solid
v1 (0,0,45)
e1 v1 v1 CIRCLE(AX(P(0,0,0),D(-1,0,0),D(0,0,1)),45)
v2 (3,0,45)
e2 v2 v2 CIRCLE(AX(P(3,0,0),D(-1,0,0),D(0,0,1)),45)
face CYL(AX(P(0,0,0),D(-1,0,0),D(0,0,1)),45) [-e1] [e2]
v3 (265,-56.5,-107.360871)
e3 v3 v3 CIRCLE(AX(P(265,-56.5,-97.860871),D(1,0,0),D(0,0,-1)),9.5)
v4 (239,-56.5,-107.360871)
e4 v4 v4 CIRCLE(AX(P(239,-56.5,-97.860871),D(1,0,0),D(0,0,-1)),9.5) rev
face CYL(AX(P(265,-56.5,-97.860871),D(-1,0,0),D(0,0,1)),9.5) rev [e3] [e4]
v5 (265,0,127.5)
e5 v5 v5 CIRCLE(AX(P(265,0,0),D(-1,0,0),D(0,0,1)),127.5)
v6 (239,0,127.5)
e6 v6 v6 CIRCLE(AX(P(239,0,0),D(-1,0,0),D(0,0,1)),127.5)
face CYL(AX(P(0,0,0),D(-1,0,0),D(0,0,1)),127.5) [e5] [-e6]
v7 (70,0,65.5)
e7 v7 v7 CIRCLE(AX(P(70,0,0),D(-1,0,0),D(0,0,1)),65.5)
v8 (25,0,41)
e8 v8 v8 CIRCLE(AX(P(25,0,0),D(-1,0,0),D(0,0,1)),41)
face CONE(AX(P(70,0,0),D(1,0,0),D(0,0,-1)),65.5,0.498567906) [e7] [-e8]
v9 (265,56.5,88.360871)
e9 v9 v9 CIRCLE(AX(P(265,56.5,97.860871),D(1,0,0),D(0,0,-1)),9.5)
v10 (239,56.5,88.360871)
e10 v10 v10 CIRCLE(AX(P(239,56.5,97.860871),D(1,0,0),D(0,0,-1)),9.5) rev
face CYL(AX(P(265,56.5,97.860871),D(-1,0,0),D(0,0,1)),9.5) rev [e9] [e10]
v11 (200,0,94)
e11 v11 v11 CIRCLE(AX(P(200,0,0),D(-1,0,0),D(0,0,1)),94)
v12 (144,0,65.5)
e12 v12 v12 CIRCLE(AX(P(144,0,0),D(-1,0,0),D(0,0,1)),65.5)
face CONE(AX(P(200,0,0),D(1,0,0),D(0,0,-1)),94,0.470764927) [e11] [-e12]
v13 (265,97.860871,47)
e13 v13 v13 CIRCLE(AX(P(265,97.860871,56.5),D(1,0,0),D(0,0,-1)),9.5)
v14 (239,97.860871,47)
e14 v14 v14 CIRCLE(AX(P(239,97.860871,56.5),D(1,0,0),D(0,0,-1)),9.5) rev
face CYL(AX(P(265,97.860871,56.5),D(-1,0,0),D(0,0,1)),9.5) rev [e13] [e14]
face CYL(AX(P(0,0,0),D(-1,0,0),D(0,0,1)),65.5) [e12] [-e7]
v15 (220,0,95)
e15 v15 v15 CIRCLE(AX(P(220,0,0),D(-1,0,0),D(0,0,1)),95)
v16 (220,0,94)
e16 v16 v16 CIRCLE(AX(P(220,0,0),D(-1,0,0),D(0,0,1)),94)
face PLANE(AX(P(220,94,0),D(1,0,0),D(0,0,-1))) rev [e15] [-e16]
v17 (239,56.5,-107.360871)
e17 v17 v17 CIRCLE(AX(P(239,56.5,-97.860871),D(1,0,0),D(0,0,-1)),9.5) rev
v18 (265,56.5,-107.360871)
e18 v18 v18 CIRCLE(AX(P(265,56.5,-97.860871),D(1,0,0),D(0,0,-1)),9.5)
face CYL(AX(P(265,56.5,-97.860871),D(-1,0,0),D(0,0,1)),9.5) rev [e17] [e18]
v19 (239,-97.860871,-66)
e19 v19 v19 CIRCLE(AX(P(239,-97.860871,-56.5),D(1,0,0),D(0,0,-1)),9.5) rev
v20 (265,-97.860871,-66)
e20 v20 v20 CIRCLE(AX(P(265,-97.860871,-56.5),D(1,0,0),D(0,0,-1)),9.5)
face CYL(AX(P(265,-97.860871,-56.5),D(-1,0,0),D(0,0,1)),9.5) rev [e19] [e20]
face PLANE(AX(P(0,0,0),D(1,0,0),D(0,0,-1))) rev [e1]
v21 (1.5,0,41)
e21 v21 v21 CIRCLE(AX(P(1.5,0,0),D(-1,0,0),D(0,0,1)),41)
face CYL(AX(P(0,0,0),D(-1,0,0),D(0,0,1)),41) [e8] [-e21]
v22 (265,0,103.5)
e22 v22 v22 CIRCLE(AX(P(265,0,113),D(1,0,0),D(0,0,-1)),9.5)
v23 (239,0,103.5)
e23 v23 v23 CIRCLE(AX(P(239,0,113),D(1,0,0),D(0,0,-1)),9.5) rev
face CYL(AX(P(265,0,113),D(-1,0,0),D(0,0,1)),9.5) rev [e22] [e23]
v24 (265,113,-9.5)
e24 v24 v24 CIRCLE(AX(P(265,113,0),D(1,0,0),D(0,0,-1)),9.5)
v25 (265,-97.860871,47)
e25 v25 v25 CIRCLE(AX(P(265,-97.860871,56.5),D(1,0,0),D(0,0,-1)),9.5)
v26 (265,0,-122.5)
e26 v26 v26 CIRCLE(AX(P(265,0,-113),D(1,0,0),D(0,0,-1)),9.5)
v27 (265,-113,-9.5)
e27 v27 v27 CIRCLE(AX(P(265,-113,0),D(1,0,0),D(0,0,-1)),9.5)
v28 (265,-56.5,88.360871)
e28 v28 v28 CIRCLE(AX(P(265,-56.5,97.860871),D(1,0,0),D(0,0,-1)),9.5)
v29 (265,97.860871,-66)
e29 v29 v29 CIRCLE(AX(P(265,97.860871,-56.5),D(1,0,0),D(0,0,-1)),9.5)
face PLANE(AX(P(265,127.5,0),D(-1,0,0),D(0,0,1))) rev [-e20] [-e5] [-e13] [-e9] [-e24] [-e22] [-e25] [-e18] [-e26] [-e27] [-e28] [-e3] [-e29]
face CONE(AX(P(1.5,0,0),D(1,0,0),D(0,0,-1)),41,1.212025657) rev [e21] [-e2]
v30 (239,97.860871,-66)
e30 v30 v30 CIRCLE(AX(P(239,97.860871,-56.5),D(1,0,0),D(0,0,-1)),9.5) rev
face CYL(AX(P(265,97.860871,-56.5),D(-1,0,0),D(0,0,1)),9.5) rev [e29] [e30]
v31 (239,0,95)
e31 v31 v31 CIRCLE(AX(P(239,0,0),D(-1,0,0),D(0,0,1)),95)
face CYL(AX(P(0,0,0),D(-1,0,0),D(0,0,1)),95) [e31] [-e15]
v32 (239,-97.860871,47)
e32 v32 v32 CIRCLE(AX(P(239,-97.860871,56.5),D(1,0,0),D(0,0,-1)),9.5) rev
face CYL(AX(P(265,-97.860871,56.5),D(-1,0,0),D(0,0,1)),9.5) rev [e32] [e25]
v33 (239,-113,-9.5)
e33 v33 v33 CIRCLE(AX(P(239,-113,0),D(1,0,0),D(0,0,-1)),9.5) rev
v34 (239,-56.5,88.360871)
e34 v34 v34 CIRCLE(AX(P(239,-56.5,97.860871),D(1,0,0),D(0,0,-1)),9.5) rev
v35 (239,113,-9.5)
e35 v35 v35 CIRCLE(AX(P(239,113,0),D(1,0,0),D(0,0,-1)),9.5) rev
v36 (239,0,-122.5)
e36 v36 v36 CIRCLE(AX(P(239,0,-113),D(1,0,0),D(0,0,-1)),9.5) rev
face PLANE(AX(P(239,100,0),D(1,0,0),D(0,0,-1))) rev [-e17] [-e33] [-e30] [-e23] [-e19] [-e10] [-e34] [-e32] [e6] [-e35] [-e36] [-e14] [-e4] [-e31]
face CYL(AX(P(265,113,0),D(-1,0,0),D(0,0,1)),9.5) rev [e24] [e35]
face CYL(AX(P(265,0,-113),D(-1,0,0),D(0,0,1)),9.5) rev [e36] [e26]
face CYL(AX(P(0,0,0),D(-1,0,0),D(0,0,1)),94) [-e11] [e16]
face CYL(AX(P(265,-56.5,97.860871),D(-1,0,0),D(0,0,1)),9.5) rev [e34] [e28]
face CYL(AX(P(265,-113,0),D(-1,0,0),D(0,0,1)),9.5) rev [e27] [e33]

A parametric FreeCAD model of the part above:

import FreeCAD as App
import Part
import Sketcher

V = App.Vector

doc = App.newDocument("Part")
params = doc.addObject("Spreadsheet::Sheet", "Params")
for row, (alias, value) in enumerate([
    ("sketch1_width", "265 mm"),
    ("sketch1_width2", "26 mm"),
    ("sketch1_width3", "19 mm"),
    ("sketch1_width4", "20 mm"),
    ("sketch1_width5", "74 mm"),
    ("revolution_angle", "360 deg"),
    ("sketch2_diameter", "19 mm"),
    ("sketch3_diameter", "19 mm"),
    ("sketch4_diameter", "19 mm"),
    ("sketch5_diameter", "19 mm"),
    ("sketch6_diameter", "19 mm"),
    ("sketch7_diameter", "19 mm"),
    ("sketch8_diameter", "19 mm"),
    ("sketch9_diameter", "19 mm"),
    ("sketch10_diameter", "19 mm"),
    ("sketch11_diameter", "19 mm"),
    ("sketch12_diameter", "19 mm"),
    ("sketch13_diameter", "19 mm"),
], start=1):
    params.set(f"A{row}", alias)
    params.set(f"B{row}", "=" + value)
    params.setAlias(f"B{row}", alias)

body = doc.addObject("PartDesign::Body", "Body")

# Sketch on XY plane
sketch1 = doc.addObject("Sketcher::SketchObject", "Sketch")
body.addObject(sketch1)
sketch1.AttachmentSupport = (doc.XY_Plane, [""])
sketch1.MapMode = "FlatFace"
sketch1.addGeometry([
    Part.LineSegment(V(0, 0, 0), V(265, 0, 0)),  # 0
    Part.LineSegment(V(265, 0, 0), V(265, 127.5, 0)),  # 1
    Part.LineSegment(V(265, 127.5, 0), V(239, 127.5, 0)),  # 2
    Part.LineSegment(V(239, 127.5, 0), V(239, 95, 0)),  # 3
    Part.LineSegment(V(239, 95, 0), V(220, 95, 0)),  # 4
    Part.LineSegment(V(220, 95, 0), V(220, 94, 0)),  # 5
    Part.LineSegment(V(220, 94, 0), V(200, 94, 0)),  # 6
    Part.LineSegment(V(200, 94, 0), V(144, 65.5, 0)),  # 7
    Part.LineSegment(V(144, 65.5, 0), V(70, 65.5, 0)),  # 8
    Part.LineSegment(V(70, 65.5, 0), V(25, 41, 0)),  # 9
    Part.LineSegment(V(25, 41, 0), V(1.5, 41, 0)),  # 10
    Part.LineSegment(V(1.5, 41, 0), V(3, 45, 0)),  # 11
    Part.LineSegment(V(3, 45, 0), V(0, 45, 0)),  # 12
    Part.LineSegment(V(0, 45, 0), V(0, 0, 0)),  # 13
], False)
sketch1.addConstraint([
    Sketcher.Constraint("Coincident", 0, 2, 1, 1),
    Sketcher.Constraint("Coincident", 1, 2, 2, 1),
    Sketcher.Constraint("Coincident", 2, 2, 3, 1),
    Sketcher.Constraint("Coincident", 3, 2, 4, 1),
    Sketcher.Constraint("Coincident", 4, 2, 5, 1),
    Sketcher.Constraint("Coincident", 5, 2, 6, 1),
    Sketcher.Constraint("Coincident", 6, 2, 7, 1),
    Sketcher.Constraint("Coincident", 7, 2, 8, 1),
    Sketcher.Constraint("Coincident", 8, 2, 9, 1),
    Sketcher.Constraint("Coincident", 9, 2, 10, 1),
    Sketcher.Constraint("Coincident", 10, 2, 11, 1),
    Sketcher.Constraint("Coincident", 11, 2, 12, 1),
    Sketcher.Constraint("Coincident", 12, 2, 13, 1),
    Sketcher.Constraint("Coincident", 13, 2, 0, 1),
    Sketcher.Constraint("Horizontal", 0),
    Sketcher.Constraint("Vertical", 1),
    Sketcher.Constraint("Horizontal", 2),
    Sketcher.Constraint("Vertical", 3),
    Sketcher.Constraint("Horizontal", 4),
    Sketcher.Constraint("Vertical", 5),
    Sketcher.Constraint("Horizontal", 6),
    Sketcher.Constraint("Horizontal", 8),
    Sketcher.Constraint("Horizontal", 10),
    Sketcher.Constraint("Horizontal", 12),
    Sketcher.Constraint("Vertical", 13),
    Sketcher.Constraint("Coincident", 13, 2, -1, 1),
    Sketcher.Constraint("DistanceX", 0, 1, 0, 2, 265.0),
    Sketcher.Constraint("DistanceX", 2, 2, 2, 1, 26.0),
    Sketcher.Constraint("DistanceX", 4, 2, 4, 1, 19.0),
    Sketcher.Constraint("DistanceX", 6, 2, 6, 1, 20.0),
    Sketcher.Constraint("DistanceX", 8, 2, 8, 1, 74.0),
    Sketcher.Constraint("DistanceX", 12, 2, 12, 1, 3.0),
    Sketcher.Constraint("DistanceY", 5, 2, 5, 1, 1.0),
    Sketcher.Constraint("DistanceY", 13, 2, 13, 1, 45.0),
    Sketcher.Constraint("DistanceX", 10, 2, 10, 1, 23.5),
    Sketcher.Constraint("DistanceY", 1, 1, 1, 2, 127.5),
    Sketcher.Constraint("DistanceY", 3, 2, 3, 1, 32.5),
    Sketcher.Constraint("DistanceX", -1, 1, 7, 2, 144.0),
    Sketcher.Constraint("DistanceX", -1, 1, 9, 2, 25.0),
    Sketcher.Constraint("DistanceY", -1, 1, 9, 2, 41.0),
    Sketcher.Constraint("DistanceY", 7, 2, 2, 2, 62.0),
])
sketch1.setExpression("Constraints[26]", "Params.sketch1_width")
sketch1.setExpression("Constraints[27]", "Params.sketch1_width2")
sketch1.setExpression("Constraints[28]", "Params.sketch1_width3")
sketch1.setExpression("Constraints[29]", "Params.sketch1_width4")
sketch1.setExpression("Constraints[30]", "Params.sketch1_width5")
revolution = doc.addObject("PartDesign::Revolution", "Revolution")
body.addObject(revolution)
revolution.Profile = sketch1
revolution.ReferenceAxis = (sketch1, ["H_Axis"])
revolution.setExpression("Angle", "Params.revolution_angle")

# Sketch on YZ plane
sketch2 = doc.addObject("Sketcher::SketchObject", "Sketch001")
body.addObject(sketch2)
sketch2.AttachmentSupport = (doc.YZ_Plane, [""])
sketch2.MapMode = "FlatFace"
sketch2.addGeometry(Part.Circle(V(113, 0, 0), V(0, 0, 1), 10), False)
sketch2.addConstraint([
    Sketcher.Constraint("PointOnObject", 0, 3, -1),
    Sketcher.Constraint("Diameter", 0, 19.0),
    Sketcher.Constraint("DistanceX", -1, 1, 0, 3, 113.0),
])
sketch2.setExpression("Constraints[1]", "Params.sketch2_diameter")
pocket1 = doc.addObject("PartDesign::Pocket", "Pocket")
body.addObject(pocket1)
pocket1.Profile = sketch2
pocket1.Type = "ThroughAll"
pocket1.Reversed = True

# Sketch on YZ plane
sketch3 = doc.addObject("Sketcher::SketchObject", "Sketch002")
body.addObject(sketch3)
sketch3.AttachmentSupport = (doc.YZ_Plane, [""])
sketch3.MapMode = "FlatFace"
sketch3.addGeometry(Part.Circle(V(98, 56, 0), V(0, 0, 1), 10), False)
sketch3.addConstraint([
    Sketcher.Constraint("Diameter", 0, 19.0),
    Sketcher.Constraint("DistanceY", -1, 1, 0, 3, 56.5),
    Sketcher.Constraint("DistanceX", -1, 1, 0, 3, 97.860871),
])
sketch3.setExpression("Constraints[0]", "Params.sketch3_diameter")
pocket2 = doc.addObject("PartDesign::Pocket", "Pocket001")
body.addObject(pocket2)
pocket2.Profile = sketch3
pocket2.Type = "ThroughAll"
pocket2.Reversed = True

# Sketch on YZ plane
sketch4 = doc.addObject("Sketcher::SketchObject", "Sketch003")
body.addObject(sketch4)
sketch4.AttachmentSupport = (doc.YZ_Plane, [""])
sketch4.MapMode = "FlatFace"
sketch4.addGeometry(Part.Circle(V(56, 98, 0), V(0, 0, 1), 10), False)
sketch4.addConstraint([
    Sketcher.Constraint("Diameter", 0, 19.0),
    Sketcher.Constraint("DistanceX", -1, 1, 0, 3, 56.5),
    Sketcher.Constraint("DistanceY", -1, 1, 0, 3, 97.860871),
])
sketch4.setExpression("Constraints[0]", "Params.sketch4_diameter")
pocket3 = doc.addObject("PartDesign::Pocket", "Pocket002")
body.addObject(pocket3)
pocket3.Profile = sketch4
pocket3.Type = "ThroughAll"
pocket3.Reversed = True

# Sketch on YZ plane
sketch5 = doc.addObject("Sketcher::SketchObject", "Sketch004")
body.addObject(sketch5)
sketch5.AttachmentSupport = (doc.YZ_Plane, [""])
sketch5.MapMode = "FlatFace"
sketch5.addGeometry(Part.Circle(V(0, 113, 0), V(0, 0, 1), 10), False)
sketch5.addConstraint([
    Sketcher.Constraint("PointOnObject", 0, 3, -2),
    Sketcher.Constraint("Diameter", 0, 19.0),
    Sketcher.Constraint("DistanceY", -1, 1, 0, 3, 113.0),
])
sketch5.setExpression("Constraints[1]", "Params.sketch5_diameter")
pocket4 = doc.addObject("PartDesign::Pocket", "Pocket003")
body.addObject(pocket4)
pocket4.Profile = sketch5
pocket4.Type = "ThroughAll"
pocket4.Reversed = True

# Sketch on YZ plane
sketch6 = doc.addObject("Sketcher::SketchObject", "Sketch005")
body.addObject(sketch6)
sketch6.AttachmentSupport = (doc.YZ_Plane, [""])
sketch6.MapMode = "FlatFace"
sketch6.addGeometry(Part.Circle(V(-56, 98, 0), V(0, 0, 1), 10), False)
sketch6.addConstraint([
    Sketcher.Constraint("Diameter", 0, 19.0),
    Sketcher.Constraint("DistanceX", 0, 3, -1, 1, 56.5),
    Sketcher.Constraint("DistanceY", -1, 1, 0, 3, 97.860871),
])
sketch6.setExpression("Constraints[0]", "Params.sketch6_diameter")
pocket5 = doc.addObject("PartDesign::Pocket", "Pocket004")
body.addObject(pocket5)
pocket5.Profile = sketch6
pocket5.Type = "ThroughAll"
pocket5.Reversed = True

# Sketch on YZ plane
sketch7 = doc.addObject("Sketcher::SketchObject", "Sketch006")
body.addObject(sketch7)
sketch7.AttachmentSupport = (doc.YZ_Plane, [""])
sketch7.MapMode = "FlatFace"
sketch7.addGeometry(Part.Circle(V(-98, 56, 0), V(0, 0, 1), 10), False)
sketch7.addConstraint([
    Sketcher.Constraint("Diameter", 0, 19.0),
    Sketcher.Constraint("DistanceY", -1, 1, 0, 3, 56.5),
    Sketcher.Constraint("DistanceX", 0, 3, -1, 1, 97.860871),
])
sketch7.setExpression("Constraints[0]", "Params.sketch7_diameter")
pocket6 = doc.addObject("PartDesign::Pocket", "Pocket005")
body.addObject(pocket6)
pocket6.Profile = sketch7
pocket6.Type = "ThroughAll"
pocket6.Reversed = True

# Sketch on YZ plane
sketch8 = doc.addObject("Sketcher::SketchObject", "Sketch007")
body.addObject(sketch8)
sketch8.AttachmentSupport = (doc.YZ_Plane, [""])
sketch8.MapMode = "FlatFace"
sketch8.addGeometry(Part.Circle(V(-113, 0, 0), V(0, 0, 1), 10), False)
sketch8.addConstraint([
    Sketcher.Constraint("PointOnObject", 0, 3, -1),
    Sketcher.Constraint("Diameter", 0, 19.0),
    Sketcher.Constraint("DistanceX", 0, 3, -1, 1, 113.0),
])
sketch8.setExpression("Constraints[1]", "Params.sketch8_diameter")
pocket7 = doc.addObject("PartDesign::Pocket", "Pocket006")
body.addObject(pocket7)
pocket7.Profile = sketch8
pocket7.Type = "ThroughAll"
pocket7.Reversed = True

# Sketch on YZ plane
sketch9 = doc.addObject("Sketcher::SketchObject", "Sketch008")
body.addObject(sketch9)
sketch9.AttachmentSupport = (doc.YZ_Plane, [""])
sketch9.MapMode = "FlatFace"
sketch9.addGeometry(Part.Circle(V(-98, -56, 0), V(0, 0, 1), 10), False)
sketch9.addConstraint([
    Sketcher.Constraint("Diameter", 0, 19.0),
    Sketcher.Constraint("DistanceY", 0, 3, -1, 1, 56.5),
    Sketcher.Constraint("DistanceX", 0, 3, -1, 1, 97.860871),
])
sketch9.setExpression("Constraints[0]", "Params.sketch9_diameter")
pocket8 = doc.addObject("PartDesign::Pocket", "Pocket007")
body.addObject(pocket8)
pocket8.Profile = sketch9
pocket8.Type = "ThroughAll"
pocket8.Reversed = True

# Sketch on YZ plane
sketch10 = doc.addObject("Sketcher::SketchObject", "Sketch009")
body.addObject(sketch10)
sketch10.AttachmentSupport = (doc.YZ_Plane, [""])
sketch10.MapMode = "FlatFace"
sketch10.addGeometry(Part.Circle(V(-56, -98, 0), V(0, 0, 1), 10), False)
sketch10.addConstraint([
    Sketcher.Constraint("Diameter", 0, 19.0),
    Sketcher.Constraint("DistanceX", 0, 3, -1, 1, 56.5),
    Sketcher.Constraint("DistanceY", 0, 3, -1, 1, 97.860871),
])
sketch10.setExpression("Constraints[0]", "Params.sketch10_diameter")
pocket9 = doc.addObject("PartDesign::Pocket", "Pocket008")
body.addObject(pocket9)
pocket9.Profile = sketch10
pocket9.Type = "ThroughAll"
pocket9.Reversed = True

# Sketch on YZ plane
sketch11 = doc.addObject("Sketcher::SketchObject", "Sketch010")
body.addObject(sketch11)
sketch11.AttachmentSupport = (doc.YZ_Plane, [""])
sketch11.MapMode = "FlatFace"
sketch11.addGeometry(Part.Circle(V(0, -113, 0), V(0, 0, 1), 10), False)
sketch11.addConstraint([
    Sketcher.Constraint("PointOnObject", 0, 3, -2),
    Sketcher.Constraint("Diameter", 0, 19.0),
    Sketcher.Constraint("DistanceY", 0, 3, -1, 1, 113.0),
])
sketch11.setExpression("Constraints[1]", "Params.sketch11_diameter")
pocket10 = doc.addObject("PartDesign::Pocket", "Pocket009")
body.addObject(pocket10)
pocket10.Profile = sketch11
pocket10.Type = "ThroughAll"
pocket10.Reversed = True

# Sketch on YZ plane
sketch12 = doc.addObject("Sketcher::SketchObject", "Sketch011")
body.addObject(sketch12)
sketch12.AttachmentSupport = (doc.YZ_Plane, [""])
sketch12.MapMode = "FlatFace"
sketch12.addGeometry(Part.Circle(V(56, -98, 0), V(0, 0, 1), 10), False)
sketch12.addConstraint([
    Sketcher.Constraint("Diameter", 0, 19.0),
    Sketcher.Constraint("DistanceX", -1, 1, 0, 3, 56.5),
    Sketcher.Constraint("DistanceY", 0, 3, -1, 1, 97.860871),
])
sketch12.setExpression("Constraints[0]", "Params.sketch12_diameter")
pocket11 = doc.addObject("PartDesign::Pocket", "Pocket010")
body.addObject(pocket11)
pocket11.Profile = sketch12
pocket11.Type = "ThroughAll"
pocket11.Reversed = True

# Sketch on YZ plane
sketch13 = doc.addObject("Sketcher::SketchObject", "Sketch012")
body.addObject(sketch13)
sketch13.AttachmentSupport = (doc.YZ_Plane, [""])
sketch13.MapMode = "FlatFace"
sketch13.addGeometry(Part.Circle(V(98, -56, 0), V(0, 0, 1), 10), False)
sketch13.addConstraint([
    Sketcher.Constraint("Diameter", 0, 19.0),
    Sketcher.Constraint("DistanceY", 0, 3, -1, 1, 56.5),
    Sketcher.Constraint("DistanceX", -1, 1, 0, 3, 97.860871),
])
sketch13.setExpression("Constraints[0]", "Params.sketch13_diameter")
pocket12 = doc.addObject("PartDesign::Pocket", "Pocket011")
body.addObject(pocket12)
pocket12.Profile = sketch13
pocket12.Type = "ThroughAll"
pocket12.Reversed = True

doc.recompute()
